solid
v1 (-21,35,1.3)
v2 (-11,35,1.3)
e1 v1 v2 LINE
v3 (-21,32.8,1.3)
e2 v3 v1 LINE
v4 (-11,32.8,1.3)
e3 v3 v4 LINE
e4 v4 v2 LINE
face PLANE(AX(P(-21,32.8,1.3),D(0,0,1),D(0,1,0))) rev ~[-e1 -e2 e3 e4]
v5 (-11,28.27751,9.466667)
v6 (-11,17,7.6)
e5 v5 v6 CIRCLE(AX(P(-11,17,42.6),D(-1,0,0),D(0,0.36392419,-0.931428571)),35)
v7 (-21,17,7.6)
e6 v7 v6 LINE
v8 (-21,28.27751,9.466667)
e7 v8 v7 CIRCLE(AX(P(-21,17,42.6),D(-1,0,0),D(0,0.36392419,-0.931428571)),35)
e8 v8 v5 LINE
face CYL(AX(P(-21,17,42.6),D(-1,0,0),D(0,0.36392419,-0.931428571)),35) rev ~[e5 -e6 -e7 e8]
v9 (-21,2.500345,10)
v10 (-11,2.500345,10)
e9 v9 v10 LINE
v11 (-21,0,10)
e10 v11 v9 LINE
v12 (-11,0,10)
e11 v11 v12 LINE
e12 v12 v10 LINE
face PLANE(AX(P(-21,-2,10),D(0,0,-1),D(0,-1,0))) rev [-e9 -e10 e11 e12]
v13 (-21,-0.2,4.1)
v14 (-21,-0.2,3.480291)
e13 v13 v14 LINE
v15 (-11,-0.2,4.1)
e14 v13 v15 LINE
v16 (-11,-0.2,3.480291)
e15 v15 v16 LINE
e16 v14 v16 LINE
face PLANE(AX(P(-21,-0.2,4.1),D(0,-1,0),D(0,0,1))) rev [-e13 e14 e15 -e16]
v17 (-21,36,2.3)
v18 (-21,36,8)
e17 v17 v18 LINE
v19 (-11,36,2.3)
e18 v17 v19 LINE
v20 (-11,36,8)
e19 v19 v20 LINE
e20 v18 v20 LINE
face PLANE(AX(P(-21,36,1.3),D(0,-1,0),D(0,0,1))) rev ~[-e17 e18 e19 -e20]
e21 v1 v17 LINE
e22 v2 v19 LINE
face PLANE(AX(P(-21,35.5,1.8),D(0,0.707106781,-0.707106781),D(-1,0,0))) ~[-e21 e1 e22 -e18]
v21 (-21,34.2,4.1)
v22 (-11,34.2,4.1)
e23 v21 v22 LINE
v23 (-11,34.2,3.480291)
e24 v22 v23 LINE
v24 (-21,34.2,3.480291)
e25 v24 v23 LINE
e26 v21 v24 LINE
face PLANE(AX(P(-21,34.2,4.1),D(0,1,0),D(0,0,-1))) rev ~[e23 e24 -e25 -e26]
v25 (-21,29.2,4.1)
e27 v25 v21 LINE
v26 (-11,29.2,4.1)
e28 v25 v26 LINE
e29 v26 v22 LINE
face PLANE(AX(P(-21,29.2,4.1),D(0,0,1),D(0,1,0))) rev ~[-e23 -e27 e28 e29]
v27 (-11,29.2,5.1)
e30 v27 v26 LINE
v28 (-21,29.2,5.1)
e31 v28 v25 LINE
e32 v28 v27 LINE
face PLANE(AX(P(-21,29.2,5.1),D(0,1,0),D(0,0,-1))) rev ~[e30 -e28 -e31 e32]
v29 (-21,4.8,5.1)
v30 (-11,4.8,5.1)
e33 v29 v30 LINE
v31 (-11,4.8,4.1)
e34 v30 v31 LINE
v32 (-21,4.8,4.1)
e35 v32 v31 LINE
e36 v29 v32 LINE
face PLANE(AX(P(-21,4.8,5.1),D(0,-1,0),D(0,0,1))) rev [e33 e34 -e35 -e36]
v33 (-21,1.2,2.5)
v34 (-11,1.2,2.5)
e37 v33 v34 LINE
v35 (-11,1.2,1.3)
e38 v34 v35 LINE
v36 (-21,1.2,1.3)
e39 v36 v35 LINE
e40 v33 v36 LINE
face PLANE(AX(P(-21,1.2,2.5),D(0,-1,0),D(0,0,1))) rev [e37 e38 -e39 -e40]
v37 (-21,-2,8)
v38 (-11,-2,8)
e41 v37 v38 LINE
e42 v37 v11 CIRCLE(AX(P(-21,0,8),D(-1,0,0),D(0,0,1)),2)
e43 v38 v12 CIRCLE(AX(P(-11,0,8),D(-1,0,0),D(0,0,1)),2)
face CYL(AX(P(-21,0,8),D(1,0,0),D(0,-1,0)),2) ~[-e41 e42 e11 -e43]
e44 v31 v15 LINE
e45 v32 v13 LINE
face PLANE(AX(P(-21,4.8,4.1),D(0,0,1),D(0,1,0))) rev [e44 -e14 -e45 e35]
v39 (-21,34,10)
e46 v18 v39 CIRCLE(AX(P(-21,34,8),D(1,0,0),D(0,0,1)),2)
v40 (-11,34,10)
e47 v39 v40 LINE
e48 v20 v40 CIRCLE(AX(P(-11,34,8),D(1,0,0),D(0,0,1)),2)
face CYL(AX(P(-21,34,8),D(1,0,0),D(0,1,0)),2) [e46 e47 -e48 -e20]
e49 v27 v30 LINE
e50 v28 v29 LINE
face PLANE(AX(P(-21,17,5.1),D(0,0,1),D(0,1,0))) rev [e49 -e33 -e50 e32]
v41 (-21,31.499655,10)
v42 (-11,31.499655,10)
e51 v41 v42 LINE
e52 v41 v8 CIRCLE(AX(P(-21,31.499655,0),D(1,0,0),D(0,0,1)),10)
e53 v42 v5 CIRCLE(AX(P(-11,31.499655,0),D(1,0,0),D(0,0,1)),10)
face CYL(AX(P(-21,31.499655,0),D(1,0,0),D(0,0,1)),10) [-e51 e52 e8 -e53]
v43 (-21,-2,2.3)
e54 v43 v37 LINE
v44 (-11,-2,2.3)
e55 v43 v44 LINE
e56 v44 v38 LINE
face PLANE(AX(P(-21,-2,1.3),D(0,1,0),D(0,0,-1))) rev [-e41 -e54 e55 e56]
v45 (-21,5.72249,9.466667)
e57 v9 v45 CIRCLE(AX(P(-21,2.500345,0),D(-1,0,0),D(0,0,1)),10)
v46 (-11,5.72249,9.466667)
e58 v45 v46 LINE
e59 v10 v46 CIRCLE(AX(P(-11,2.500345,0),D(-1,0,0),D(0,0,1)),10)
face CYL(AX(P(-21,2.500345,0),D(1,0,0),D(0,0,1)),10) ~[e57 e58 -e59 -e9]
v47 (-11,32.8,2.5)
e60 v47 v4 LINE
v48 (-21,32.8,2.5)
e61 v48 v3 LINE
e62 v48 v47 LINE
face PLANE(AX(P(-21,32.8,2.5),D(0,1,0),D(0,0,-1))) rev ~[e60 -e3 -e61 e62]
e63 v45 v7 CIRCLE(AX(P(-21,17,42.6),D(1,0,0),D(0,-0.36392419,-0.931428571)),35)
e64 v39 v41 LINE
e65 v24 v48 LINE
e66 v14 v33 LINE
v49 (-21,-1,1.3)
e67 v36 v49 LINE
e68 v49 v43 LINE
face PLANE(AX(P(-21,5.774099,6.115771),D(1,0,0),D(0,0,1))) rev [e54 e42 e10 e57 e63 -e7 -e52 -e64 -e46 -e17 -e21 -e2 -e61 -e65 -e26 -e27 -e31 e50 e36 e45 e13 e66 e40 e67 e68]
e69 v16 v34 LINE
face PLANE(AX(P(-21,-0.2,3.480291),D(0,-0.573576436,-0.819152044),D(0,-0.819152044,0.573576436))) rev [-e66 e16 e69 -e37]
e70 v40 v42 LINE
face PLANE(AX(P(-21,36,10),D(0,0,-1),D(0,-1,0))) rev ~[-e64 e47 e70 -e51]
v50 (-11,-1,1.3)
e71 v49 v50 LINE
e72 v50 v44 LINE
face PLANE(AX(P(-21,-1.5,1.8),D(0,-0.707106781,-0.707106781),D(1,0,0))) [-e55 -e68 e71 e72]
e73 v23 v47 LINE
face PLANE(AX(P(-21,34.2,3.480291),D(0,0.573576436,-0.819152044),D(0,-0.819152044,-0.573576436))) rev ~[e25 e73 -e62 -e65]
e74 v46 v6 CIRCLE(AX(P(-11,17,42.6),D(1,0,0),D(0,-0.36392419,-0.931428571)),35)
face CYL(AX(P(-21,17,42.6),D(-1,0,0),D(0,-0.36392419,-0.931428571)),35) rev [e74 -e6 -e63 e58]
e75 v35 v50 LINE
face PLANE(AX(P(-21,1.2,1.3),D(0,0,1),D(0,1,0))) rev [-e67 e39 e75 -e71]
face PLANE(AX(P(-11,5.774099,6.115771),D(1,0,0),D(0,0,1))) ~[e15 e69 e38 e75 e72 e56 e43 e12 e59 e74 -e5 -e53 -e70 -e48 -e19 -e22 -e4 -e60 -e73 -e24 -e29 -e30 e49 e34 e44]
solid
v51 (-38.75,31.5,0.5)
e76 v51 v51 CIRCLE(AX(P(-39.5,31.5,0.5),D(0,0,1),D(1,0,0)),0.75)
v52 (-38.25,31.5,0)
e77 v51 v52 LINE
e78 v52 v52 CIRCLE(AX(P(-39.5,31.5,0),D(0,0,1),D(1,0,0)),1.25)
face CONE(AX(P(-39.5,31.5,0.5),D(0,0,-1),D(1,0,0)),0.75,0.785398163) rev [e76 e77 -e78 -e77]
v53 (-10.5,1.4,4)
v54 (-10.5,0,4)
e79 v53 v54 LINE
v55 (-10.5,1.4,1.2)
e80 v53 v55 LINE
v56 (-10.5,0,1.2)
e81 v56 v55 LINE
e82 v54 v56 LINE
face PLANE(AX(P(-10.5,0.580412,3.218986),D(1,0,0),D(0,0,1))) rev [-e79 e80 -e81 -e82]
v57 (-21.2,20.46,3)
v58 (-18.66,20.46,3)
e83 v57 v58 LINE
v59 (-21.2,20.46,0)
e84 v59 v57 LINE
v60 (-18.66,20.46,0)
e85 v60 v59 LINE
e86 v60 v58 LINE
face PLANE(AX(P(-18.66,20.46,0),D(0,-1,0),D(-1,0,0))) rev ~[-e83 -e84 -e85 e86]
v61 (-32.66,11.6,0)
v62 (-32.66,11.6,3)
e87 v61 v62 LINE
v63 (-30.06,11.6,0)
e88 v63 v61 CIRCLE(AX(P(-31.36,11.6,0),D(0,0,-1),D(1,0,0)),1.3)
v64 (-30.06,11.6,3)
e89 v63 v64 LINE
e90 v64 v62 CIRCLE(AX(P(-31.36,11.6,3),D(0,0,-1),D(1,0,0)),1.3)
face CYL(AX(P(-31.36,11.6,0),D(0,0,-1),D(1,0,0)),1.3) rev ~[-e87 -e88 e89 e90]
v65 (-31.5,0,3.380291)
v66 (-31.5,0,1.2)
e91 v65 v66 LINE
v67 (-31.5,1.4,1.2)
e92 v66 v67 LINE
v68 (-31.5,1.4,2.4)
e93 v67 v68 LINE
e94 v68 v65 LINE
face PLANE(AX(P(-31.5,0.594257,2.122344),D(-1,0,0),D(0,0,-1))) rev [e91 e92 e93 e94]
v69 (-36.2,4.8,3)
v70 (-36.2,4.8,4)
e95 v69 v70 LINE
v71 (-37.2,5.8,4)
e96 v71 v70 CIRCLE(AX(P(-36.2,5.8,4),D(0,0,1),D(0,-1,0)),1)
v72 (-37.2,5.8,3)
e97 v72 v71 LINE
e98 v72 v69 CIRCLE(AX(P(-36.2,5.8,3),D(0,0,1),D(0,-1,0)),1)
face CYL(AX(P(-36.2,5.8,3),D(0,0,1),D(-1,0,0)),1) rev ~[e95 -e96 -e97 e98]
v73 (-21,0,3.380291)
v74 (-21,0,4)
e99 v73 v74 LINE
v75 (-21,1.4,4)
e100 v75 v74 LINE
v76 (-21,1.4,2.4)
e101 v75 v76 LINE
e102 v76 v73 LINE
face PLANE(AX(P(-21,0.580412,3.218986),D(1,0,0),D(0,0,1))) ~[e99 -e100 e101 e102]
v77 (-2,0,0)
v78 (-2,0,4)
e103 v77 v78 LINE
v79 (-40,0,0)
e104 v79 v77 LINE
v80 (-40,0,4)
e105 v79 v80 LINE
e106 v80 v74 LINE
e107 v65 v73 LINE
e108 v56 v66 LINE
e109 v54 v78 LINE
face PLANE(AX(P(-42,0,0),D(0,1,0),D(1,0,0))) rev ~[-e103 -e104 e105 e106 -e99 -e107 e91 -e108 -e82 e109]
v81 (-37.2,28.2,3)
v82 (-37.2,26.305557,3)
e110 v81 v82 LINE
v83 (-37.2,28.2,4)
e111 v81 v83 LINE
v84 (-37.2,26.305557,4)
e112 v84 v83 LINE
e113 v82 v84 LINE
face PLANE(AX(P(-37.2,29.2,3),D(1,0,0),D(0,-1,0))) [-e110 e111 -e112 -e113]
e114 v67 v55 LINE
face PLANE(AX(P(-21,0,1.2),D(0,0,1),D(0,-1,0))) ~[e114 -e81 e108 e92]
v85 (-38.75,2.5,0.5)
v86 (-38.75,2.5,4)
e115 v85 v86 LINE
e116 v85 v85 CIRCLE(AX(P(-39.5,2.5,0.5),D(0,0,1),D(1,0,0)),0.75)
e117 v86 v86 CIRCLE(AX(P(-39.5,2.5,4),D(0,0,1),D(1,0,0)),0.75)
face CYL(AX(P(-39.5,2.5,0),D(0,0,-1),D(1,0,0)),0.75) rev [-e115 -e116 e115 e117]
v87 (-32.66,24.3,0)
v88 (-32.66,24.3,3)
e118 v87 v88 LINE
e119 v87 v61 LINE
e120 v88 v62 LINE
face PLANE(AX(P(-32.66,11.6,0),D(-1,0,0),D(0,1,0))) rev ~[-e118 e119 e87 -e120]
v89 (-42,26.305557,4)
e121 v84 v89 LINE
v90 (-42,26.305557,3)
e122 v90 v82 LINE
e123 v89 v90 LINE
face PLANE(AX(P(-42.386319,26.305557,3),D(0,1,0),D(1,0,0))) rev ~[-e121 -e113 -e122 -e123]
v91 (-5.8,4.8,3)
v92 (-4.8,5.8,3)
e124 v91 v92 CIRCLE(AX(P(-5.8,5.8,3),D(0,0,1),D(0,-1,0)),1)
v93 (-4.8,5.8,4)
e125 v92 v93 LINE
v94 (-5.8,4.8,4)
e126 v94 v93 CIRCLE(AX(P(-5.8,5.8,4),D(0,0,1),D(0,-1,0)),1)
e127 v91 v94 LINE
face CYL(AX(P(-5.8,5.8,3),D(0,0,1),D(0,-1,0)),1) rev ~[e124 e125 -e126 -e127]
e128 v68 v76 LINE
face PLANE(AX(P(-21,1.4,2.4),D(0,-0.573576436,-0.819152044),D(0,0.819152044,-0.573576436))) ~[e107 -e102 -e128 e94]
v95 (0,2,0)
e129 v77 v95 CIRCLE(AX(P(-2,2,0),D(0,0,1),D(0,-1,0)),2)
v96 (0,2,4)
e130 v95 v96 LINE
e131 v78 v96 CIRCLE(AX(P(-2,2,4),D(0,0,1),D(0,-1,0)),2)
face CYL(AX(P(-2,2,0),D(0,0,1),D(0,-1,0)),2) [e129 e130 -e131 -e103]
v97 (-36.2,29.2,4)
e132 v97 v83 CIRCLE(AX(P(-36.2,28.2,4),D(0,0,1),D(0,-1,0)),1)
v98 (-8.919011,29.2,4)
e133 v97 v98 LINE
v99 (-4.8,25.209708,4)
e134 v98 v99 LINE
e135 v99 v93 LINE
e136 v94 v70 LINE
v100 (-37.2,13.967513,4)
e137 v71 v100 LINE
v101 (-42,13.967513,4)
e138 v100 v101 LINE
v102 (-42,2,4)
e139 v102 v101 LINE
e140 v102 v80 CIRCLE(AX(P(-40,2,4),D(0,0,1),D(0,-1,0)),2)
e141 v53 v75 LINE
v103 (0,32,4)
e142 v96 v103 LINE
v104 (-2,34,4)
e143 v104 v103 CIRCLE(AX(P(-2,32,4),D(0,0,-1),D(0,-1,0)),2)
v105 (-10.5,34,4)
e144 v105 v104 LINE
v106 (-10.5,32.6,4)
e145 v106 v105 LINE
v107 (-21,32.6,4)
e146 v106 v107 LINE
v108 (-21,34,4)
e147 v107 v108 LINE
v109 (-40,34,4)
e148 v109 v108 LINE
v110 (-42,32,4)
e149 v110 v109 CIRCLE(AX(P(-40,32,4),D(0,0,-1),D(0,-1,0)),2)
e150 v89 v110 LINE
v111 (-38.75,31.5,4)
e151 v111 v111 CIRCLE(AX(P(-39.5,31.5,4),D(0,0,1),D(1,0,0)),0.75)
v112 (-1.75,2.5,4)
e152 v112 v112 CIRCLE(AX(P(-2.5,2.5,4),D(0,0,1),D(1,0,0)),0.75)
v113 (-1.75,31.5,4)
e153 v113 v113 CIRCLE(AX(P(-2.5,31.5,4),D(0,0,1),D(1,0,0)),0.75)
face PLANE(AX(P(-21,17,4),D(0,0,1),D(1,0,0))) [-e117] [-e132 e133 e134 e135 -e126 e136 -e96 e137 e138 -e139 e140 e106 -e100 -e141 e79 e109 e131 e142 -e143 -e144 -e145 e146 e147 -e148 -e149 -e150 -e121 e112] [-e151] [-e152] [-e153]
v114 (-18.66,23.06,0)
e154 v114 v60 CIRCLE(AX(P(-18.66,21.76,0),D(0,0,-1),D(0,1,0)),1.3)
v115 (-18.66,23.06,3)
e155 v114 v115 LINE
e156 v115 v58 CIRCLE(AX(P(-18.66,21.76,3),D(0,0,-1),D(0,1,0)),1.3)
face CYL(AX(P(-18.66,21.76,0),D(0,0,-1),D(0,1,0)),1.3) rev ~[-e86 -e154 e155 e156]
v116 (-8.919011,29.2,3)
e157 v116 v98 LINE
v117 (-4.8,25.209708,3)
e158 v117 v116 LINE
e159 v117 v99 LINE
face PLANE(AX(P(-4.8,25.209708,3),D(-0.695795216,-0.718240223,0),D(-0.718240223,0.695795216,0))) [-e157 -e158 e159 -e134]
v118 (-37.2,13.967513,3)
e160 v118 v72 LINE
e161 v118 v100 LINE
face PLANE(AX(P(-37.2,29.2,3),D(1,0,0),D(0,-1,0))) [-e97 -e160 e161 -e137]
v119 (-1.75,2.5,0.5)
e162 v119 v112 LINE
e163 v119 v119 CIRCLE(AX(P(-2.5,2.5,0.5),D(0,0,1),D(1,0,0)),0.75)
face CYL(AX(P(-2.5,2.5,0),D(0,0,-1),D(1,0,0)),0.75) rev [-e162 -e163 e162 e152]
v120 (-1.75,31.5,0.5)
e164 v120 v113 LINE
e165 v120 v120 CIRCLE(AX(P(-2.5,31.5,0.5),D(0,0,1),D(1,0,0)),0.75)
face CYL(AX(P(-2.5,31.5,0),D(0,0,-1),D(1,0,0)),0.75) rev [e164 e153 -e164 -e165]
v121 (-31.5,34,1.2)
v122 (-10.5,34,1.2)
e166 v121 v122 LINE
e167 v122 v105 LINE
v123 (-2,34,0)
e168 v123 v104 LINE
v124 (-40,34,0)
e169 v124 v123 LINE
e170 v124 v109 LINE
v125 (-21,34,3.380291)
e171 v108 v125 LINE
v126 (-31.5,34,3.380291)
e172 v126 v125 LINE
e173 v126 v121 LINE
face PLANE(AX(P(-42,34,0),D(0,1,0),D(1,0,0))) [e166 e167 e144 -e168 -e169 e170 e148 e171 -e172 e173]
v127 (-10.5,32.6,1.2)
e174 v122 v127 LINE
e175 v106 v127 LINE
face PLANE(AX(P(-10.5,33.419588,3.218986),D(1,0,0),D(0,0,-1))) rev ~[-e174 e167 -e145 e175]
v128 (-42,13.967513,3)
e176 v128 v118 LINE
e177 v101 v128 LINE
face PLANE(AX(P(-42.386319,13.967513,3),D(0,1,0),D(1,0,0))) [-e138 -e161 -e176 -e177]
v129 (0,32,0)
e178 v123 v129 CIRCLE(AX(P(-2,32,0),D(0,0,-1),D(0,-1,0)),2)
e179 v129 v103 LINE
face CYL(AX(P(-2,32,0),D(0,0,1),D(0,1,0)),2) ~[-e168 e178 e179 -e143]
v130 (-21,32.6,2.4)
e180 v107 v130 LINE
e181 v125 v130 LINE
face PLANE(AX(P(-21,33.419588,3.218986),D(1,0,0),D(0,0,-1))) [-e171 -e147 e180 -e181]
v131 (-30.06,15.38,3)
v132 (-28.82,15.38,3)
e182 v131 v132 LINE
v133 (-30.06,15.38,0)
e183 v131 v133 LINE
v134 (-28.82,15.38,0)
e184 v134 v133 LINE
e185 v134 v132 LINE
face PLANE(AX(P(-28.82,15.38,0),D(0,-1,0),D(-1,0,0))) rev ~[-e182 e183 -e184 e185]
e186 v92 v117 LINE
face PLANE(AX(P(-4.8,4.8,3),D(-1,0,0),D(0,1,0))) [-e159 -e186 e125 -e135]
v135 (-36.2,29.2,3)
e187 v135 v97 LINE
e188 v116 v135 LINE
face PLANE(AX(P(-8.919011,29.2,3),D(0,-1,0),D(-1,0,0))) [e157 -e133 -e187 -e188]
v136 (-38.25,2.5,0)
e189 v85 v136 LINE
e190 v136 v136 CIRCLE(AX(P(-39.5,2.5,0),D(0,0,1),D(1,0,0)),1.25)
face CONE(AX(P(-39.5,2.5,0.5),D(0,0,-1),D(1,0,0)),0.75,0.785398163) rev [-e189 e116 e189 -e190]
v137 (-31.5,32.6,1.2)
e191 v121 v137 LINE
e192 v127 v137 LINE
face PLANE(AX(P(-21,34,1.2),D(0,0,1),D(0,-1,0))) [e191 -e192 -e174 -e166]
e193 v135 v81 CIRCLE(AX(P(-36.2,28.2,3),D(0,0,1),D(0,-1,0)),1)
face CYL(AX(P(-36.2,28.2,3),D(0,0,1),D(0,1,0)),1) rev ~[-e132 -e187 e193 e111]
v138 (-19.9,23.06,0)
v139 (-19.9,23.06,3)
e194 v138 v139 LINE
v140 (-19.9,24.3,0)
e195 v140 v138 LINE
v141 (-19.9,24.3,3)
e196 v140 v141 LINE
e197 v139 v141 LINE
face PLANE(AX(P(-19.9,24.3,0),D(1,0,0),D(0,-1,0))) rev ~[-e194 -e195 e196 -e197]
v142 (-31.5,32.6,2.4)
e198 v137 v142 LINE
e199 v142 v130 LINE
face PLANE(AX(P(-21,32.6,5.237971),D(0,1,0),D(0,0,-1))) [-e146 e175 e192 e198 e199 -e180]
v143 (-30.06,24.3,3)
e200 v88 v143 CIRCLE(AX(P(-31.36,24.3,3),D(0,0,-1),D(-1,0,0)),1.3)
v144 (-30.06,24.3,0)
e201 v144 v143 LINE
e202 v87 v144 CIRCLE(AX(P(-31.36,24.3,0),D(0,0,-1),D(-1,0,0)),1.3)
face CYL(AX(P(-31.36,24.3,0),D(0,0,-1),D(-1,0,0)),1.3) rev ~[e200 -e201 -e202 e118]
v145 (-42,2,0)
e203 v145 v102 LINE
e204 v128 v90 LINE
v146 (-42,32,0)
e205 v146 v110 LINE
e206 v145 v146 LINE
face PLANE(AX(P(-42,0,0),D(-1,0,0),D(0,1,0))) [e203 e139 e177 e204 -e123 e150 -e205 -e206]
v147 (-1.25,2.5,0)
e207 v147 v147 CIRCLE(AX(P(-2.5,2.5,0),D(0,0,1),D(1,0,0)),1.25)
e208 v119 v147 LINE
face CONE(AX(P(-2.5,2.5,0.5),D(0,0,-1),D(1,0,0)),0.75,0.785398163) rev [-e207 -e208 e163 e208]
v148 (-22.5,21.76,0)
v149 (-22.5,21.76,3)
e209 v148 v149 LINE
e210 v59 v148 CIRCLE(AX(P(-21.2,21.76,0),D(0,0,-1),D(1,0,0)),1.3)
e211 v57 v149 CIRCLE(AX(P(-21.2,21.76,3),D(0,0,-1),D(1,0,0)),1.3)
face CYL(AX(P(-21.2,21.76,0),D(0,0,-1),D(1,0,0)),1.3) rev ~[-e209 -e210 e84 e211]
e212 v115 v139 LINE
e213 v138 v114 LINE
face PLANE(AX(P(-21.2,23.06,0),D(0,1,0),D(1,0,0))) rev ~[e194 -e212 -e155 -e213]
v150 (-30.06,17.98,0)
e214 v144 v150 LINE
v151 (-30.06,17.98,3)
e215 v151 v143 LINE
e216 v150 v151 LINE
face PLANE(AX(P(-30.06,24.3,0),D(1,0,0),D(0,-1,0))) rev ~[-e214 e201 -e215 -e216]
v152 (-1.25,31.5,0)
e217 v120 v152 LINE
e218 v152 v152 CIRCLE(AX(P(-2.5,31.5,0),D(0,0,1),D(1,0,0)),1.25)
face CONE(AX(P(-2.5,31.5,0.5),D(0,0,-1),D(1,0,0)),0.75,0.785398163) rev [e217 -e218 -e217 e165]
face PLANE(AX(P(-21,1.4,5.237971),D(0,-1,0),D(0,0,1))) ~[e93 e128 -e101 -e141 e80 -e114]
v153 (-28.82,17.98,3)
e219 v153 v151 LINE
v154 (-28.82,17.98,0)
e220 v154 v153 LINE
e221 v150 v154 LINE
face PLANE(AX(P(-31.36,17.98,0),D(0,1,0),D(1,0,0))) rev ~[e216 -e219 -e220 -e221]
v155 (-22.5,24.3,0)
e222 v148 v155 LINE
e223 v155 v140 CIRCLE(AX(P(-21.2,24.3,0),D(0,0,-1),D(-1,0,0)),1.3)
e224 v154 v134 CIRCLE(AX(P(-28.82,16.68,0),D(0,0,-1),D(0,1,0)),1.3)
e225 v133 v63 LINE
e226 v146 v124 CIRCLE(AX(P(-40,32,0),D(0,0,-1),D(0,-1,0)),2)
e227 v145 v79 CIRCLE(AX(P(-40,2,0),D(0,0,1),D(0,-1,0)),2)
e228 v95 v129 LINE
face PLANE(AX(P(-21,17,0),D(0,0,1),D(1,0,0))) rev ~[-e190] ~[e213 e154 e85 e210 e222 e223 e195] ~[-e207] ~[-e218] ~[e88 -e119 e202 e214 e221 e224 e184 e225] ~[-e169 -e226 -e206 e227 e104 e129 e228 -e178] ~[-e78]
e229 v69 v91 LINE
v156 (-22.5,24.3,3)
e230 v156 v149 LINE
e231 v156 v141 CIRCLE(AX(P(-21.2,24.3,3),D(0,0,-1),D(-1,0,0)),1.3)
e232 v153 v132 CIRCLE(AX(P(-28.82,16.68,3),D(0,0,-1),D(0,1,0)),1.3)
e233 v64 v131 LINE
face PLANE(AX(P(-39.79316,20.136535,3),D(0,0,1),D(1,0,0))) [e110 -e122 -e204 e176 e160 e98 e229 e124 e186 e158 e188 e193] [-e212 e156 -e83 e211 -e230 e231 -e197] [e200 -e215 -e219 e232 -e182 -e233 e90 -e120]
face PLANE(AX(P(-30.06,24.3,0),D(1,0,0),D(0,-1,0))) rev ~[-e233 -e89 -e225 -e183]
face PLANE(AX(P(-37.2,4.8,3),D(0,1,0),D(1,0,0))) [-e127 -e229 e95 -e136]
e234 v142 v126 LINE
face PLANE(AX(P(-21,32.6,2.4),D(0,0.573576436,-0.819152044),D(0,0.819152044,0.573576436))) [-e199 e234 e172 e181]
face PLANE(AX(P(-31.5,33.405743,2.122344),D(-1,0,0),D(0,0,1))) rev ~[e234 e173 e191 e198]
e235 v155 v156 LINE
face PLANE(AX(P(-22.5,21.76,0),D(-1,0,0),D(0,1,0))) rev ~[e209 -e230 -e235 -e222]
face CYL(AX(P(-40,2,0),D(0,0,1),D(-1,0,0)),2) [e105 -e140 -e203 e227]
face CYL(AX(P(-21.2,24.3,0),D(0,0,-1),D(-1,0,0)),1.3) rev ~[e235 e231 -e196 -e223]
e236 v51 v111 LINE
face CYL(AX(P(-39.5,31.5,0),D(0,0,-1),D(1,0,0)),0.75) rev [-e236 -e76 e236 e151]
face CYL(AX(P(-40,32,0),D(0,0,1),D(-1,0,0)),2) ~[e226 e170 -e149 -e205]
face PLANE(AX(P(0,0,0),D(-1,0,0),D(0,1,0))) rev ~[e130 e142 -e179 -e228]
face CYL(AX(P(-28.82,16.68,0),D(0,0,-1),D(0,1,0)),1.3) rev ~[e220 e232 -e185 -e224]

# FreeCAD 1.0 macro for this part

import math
import FreeCAD as App
import Part
import Sketcher
from FreeCAD import Vector
Q = App.Units.Quantity


def edges_at(feature, points):
    """Names of the edges that pass closest to the given points."""
    edges = feature.Shape.Edges
    near = lambda p: min(range(len(edges)), key=lambda i: edges[i].distToShape(Part.Vertex(*p))[0])
    return sorted({f"Edge{near(p) + 1}" for p in points})

doc = App.newDocument("Part")
body = doc.addObject("PartDesign::Body", "Body")

# Sketch on XY plane
sketch1 = body.newObject("Sketcher::SketchObject", "Sketch")
sketch1.AttachmentSupport = (doc.getObject("XY_Plane"), [""])
sketch1.MapMode = "FlatFace"
sketch1.addGeometry(Part.LineSegment(Vector(-42, 34, 0), Vector(-42, 0, 0)), False)
sketch1.addGeometry(Part.LineSegment(Vector(-42, 0, 0), Vector(0, 0, 0)), False)
sketch1.addGeometry(Part.LineSegment(Vector(0, 0, 0), Vector(0, 34, 0)), False)
sketch1.addGeometry(Part.LineSegment(Vector(0, 34, 0), Vector(-42, 34, 0)), False)
sketch1.addGeometry(Part.Circle(Vector(-39.5, 2.5, 0), Vector(0, 0, 1), 0.75), False)
sketch1.addGeometry(Part.Circle(Vector(-2.5, 2.5, 0), Vector(0, 0, 1), 0.75), False)
sketch1.addGeometry(Part.Circle(Vector(-39.5, 31.5, 0), Vector(0, 0, 1), 0.75), False)
sketch1.addGeometry(Part.Circle(Vector(-2.5, 31.5, 0), Vector(0, 0, 1), 0.75), False)
sketch1.addConstraint(Sketcher.Constraint("Coincident", 0, 2, 1, 1))
sketch1.addConstraint(Sketcher.Constraint("Coincident", 1, 2, 2, 1))
sketch1.addConstraint(Sketcher.Constraint("Coincident", 2, 2, 3, 1))
sketch1.addConstraint(Sketcher.Constraint("Coincident", 3, 2, 0, 1))
sketch1.addConstraint(Sketcher.Constraint("Vertical", 0))
sketch1.addConstraint(Sketcher.Constraint("Horizontal", 1))
sketch1.addConstraint(Sketcher.Constraint("Vertical", 2))
sketch1.addConstraint(Sketcher.Constraint("Horizontal", 3))
sketch1.addConstraint(Sketcher.Constraint("Coincident", 1, 2, -1, 1))
sketch1.addConstraint(Sketcher.Constraint("Equal", 4, 5))
sketch1.addConstraint(Sketcher.Constraint("Equal", 5, 6))
sketch1.addConstraint(Sketcher.Constraint("Equal", 6, 7))
sketch1.addConstraint(Sketcher.Constraint("Horizontal", 4, 3, 5, 3))
sketch1.addConstraint(Sketcher.Constraint("Horizontal", 6, 3, 7, 3))
sketch1.addConstraint(Sketcher.Constraint("Vertical", 4, 3, 6, 3))
sketch1.addConstraint(Sketcher.Constraint("Vertical", 5, 3, 7, 3))
sketch1.addConstraint(Sketcher.Constraint("Diameter", 4, Q("1.5 mm")))
sketch1.addConstraint(Sketcher.Constraint("DistanceX", 1, 1, 1, 2, Q("42 mm")))
sketch1.addConstraint(Sketcher.Constraint("DistanceY", 0, 2, 0, 1, Q("34 mm")))
sketch1.addConstraint(Sketcher.Constraint("DistanceX", 4, 3, 5, 3, Q("37 mm")))
sketch1.addConstraint(Sketcher.Constraint("DistanceY", 4, 3, 6, 3, Q("29 mm")))
sketch1.addConstraint(Sketcher.Constraint("DistanceX", 4, 3, -1, 1, Q("39.5 mm")))
sketch1.addConstraint(Sketcher.Constraint("DistanceY", -1, 1, 4, 3, Q("2.5 mm")))
pad1 = body.newObject("PartDesign::Pad", "Pad")
pad1.Profile = sketch1
pad1.Length = 4

# Sketch on XY plane
sketch2 = body.newObject("Sketcher::SketchObject", "Sketch001")
sketch2.AttachmentSupport = (doc.getObject("XY_Plane"), [""])
sketch2.MapMode = "FlatFace"
sketch2.AttachmentOffset = App.Placement(Vector(0, 0, 3), App.Rotation())
sketch2.addGeometry(Part.LineSegment(Vector(-37.2, 29.2, 0), Vector(-37.2, 4.8, 0)), False)
sketch2.addGeometry(Part.LineSegment(Vector(-37.2, 4.8, 0), Vector(-4.8, 4.8, 0)), False)
sketch2.addGeometry(Part.LineSegment(Vector(-4.8, 4.8, 0), Vector(-4.8, 25.209708, 0)), False)
sketch2.addGeometry(Part.LineSegment(Vector(-4.8, 25.209708, 0), Vector(-8.919011, 29.2, 0)), False)
sketch2.addGeometry(Part.LineSegment(Vector(-8.919011, 29.2, 0), Vector(-37.2, 29.2, 0)), False)
sketch2.addConstraint(Sketcher.Constraint("Coincident", 0, 2, 1, 1))
sketch2.addConstraint(Sketcher.Constraint("Coincident", 1, 2, 2, 1))
sketch2.addConstraint(Sketcher.Constraint("Coincident", 2, 2, 3, 1))
sketch2.addConstraint(Sketcher.Constraint("Coincident", 3, 2, 4, 1))
sketch2.addConstraint(Sketcher.Constraint("Coincident", 4, 2, 0, 1))
sketch2.addConstraint(Sketcher.Constraint("Vertical", 0))
sketch2.addConstraint(Sketcher.Constraint("Horizontal", 1))
sketch2.addConstraint(Sketcher.Constraint("Vertical", 2))
sketch2.addConstraint(Sketcher.Constraint("Horizontal", 4))
sketch2.addConstraint(Sketcher.Constraint("DistanceX", 1, 1, 1, 2, Q("32.4 mm")))
sketch2.addConstraint(Sketcher.Constraint("DistanceY", 0, 2, 0, 1, Q("24.4 mm")))
sketch2.addConstraint(Sketcher.Constraint("DistanceX", 0, 2, -1, 1, Q("37.2 mm")))
sketch2.addConstraint(Sketcher.Constraint("DistanceY", -1, 1, 0, 2, Q("4.8 mm")))
sketch2.addConstraint(Sketcher.Constraint("DistanceX", 4, 2, 4, 1, Q("28.280989 mm")))
sketch2.addConstraint(Sketcher.Constraint("DistanceY", 2, 1, 2, 2, Q("20.409708 mm")))
pocket1 = body.newObject("PartDesign::Pocket", "Pocket")
pocket1.Profile = sketch2
pocket1.Type = "ThroughAll"
pocket1.Reversed = True

# Sketch on XY plane
sketch3 = body.newObject("Sketcher::SketchObject", "Sketch002")
sketch3.AttachmentSupport = (doc.getObject("XY_Plane"), [""])
sketch3.MapMode = "FlatFace"
sketch3.addGeometry(Part.LineSegment(Vector(-30.06, 11.6, 0), Vector(-30.06, 24.3, 0)), False)
sketch3.addGeometry(Part.ArcOfCircle(Part.Circle(Vector(-31.36, 24.3, 0), Vector(0, 0, 1), 1.3), math.radians(0), math.radians(180)), False)
sketch3.addGeometry(Part.LineSegment(Vector(-32.66, 24.3, 0), Vector(-32.66, 11.6, 0)), False)
sketch3.addGeometry(Part.ArcOfCircle(Part.Circle(Vector(-31.36, 11.6, 0), Vector(0, 0, 1), 1.3), math.radians(180), math.radians(360)), False)
sketch3.addGeometry(Part.LineSegment(Vector(-19.9, 21.76, 0), Vector(-19.9, 24.3, 0)), False)
sketch3.addGeometry(Part.ArcOfCircle(Part.Circle(Vector(-21.2, 24.3, 0), Vector(0, 0, 1), 1.3), math.radians(0), math.radians(180)), False)
sketch3.addGeometry(Part.LineSegment(Vector(-22.5, 24.3, 0), Vector(-22.5, 21.76, 0)), False)
sketch3.addGeometry(Part.ArcOfCircle(Part.Circle(Vector(-21.2, 21.76, 0), Vector(0, 0, 1), 1.3), math.radians(180), math.radians(360)), False)
sketch3.addConstraint(Sketcher.Constraint("Tangent", 0, 2, 1, 1))
sketch3.addConstraint(Sketcher.Constraint("Tangent", 1, 2, 2, 1))
sketch3.addConstraint(Sketcher.Constraint("Tangent", 2, 2, 3, 1))
sketch3.addConstraint(Sketcher.Constraint("Tangent", 3, 2, 0, 1))
sketch3.addConstraint(Sketcher.Constraint("Tangent", 4, 2, 5, 1))
sketch3.addConstraint(Sketcher.Constraint("Tangent", 5, 2, 6, 1))
sketch3.addConstraint(Sketcher.Constraint("Tangent", 6, 2, 7, 1))
sketch3.addConstraint(Sketcher.Constraint("Tangent", 7, 2, 4, 1))
sketch3.addConstraint(Sketcher.Constraint("Vertical", 0))
sketch3.addConstraint(Sketcher.Constraint("Vertical", 2))
sketch3.addConstraint(Sketcher.Constraint("Vertical", 4))
sketch3.addConstraint(Sketcher.Constraint("Vertical", 6))
sketch3.addConstraint(Sketcher.Constraint("Equal", 3, 5))
sketch3.addConstraint(Sketcher.Constraint("Horizontal", 1, 3, 5, 3))
sketch3.addConstraint(Sketcher.Constraint("Radius", 1, Q("1.3 mm")))
sketch3.addConstraint(Sketcher.Constraint("DistanceY", 0, 1, 0, 2, Q("12.7 mm")))
sketch3.addConstraint(Sketcher.Constraint("DistanceY", 4, 1, 4, 2, Q("2.54 mm")))
sketch3.addConstraint(Sketcher.Constraint("DistanceY", -1, 1, 1, 3, Q("24.3 mm")))
sketch3.addConstraint(Sketcher.Constraint("DistanceX", 5, 3, -1, 1, Q("21.2 mm")))
sketch3.addConstraint(Sketcher.Constraint("DistanceX", 1, 3, -1, 1, Q("31.36 mm")))
pocket2 = body.newObject("PartDesign::Pocket", "Pocket001")
pocket2.Profile = sketch3
pocket2.Type = "ThroughAll"
pocket2.Reversed = True

# Sketch on XY plane
sketch4 = body.newObject("Sketcher::SketchObject", "Sketch003")
sketch4.AttachmentSupport = (doc.getObject("XY_Plane"), [""])
sketch4.MapMode = "FlatFace"
sketch4.addGeometry(Part.LineSegment(Vector(-31.36, 15.38, 0), Vector(-28.82, 15.38, 0)), False)
sketch4.addGeometry(Part.ArcOfCircle(Part.Circle(Vector(-28.82, 16.68, 0), Vector(0, 0, 1), 1.3), math.radians(-90), math.radians(90)), False)
sketch4.addGeometry(Part.LineSegment(Vector(-28.82, 17.98, 0), Vector(-31.36, 17.98, 0)), False)
sketch4.addGeometry(Part.ArcOfCircle(Part.Circle(Vector(-31.36, 16.68, 0), Vector(0, 0, 1), 1.3), math.radians(90), math.radians(270)), False)
sketch4.addGeometry(Part.LineSegment(Vector(-21.2, 20.46, 0), Vector(-18.66, 20.46, 0)), False)
sketch4.addGeometry(Part.ArcOfCircle(Part.Circle(Vector(-18.66, 21.76, 0), Vector(0, 0, 1), 1.3), math.radians(-90), math.radians(90)), False)
sketch4.addGeometry(Part.LineSegment(Vector(-18.66, 23.06, 0), Vector(-21.2, 23.06, 0)), False)
sketch4.addGeometry(Part.ArcOfCircle(Part.Circle(Vector(-21.2, 21.76, 0), Vector(0, 0, 1), 1.3), math.radians(90), math.radians(270)), False)
sketch4.addConstraint(Sketcher.Constraint("Tangent", 0, 2, 1, 1))
sketch4.addConstraint(Sketcher.Constraint("Tangent", 1, 2, 2, 1))
sketch4.addConstraint(Sketcher.Constraint("Tangent", 2, 2, 3, 1))
sketch4.addConstraint(Sketcher.Constraint("Tangent", 3, 2, 0, 1))
sketch4.addConstraint(Sketcher.Constraint("Tangent", 4, 2, 5, 1))
sketch4.addConstraint(Sketcher.Constraint("Tangent", 5, 2, 6, 1))
sketch4.addConstraint(Sketcher.Constraint("Tangent", 6, 2, 7, 1))
sketch4.addConstraint(Sketcher.Constraint("Tangent", 7, 2, 4, 1))
sketch4.addConstraint(Sketcher.Constraint("Horizontal", 0))
sketch4.addConstraint(Sketcher.Constraint("Horizontal", 2))
sketch4.addConstraint(Sketcher.Constraint("Horizontal", 4))
sketch4.addConstraint(Sketcher.Constraint("Horizontal", 6))
sketch4.addConstraint(Sketcher.Constraint("Equal", 3, 5))
sketch4.addConstraint(Sketcher.Constraint("Equal", 2, 4))
sketch4.addConstraint(Sketcher.Constraint("Radius", 1, Q("1.3 mm")))
sketch4.addConstraint(Sketcher.Constraint("DistanceX", 0, 1, 0, 2, Q("2.54 mm")))
sketch4.addConstraint(Sketcher.Constraint("DistanceX", 7, 3, -1, 1, Q("21.2 mm")))
sketch4.addConstraint(Sketcher.Constraint("DistanceX", 3, 3, 5, 3, Q("12.7 mm")))
sketch4.addConstraint(Sketcher.Constraint("DistanceY", -1, 1, 1, 3, Q("16.68 mm")))
sketch4.addConstraint(Sketcher.Constraint("DistanceY", -1, 1, 5, 3, Q("21.76 mm")))
pocket3 = body.newObject("PartDesign::Pocket", "Pocket002")
pocket3.Profile = sketch4
pocket3.Type = "ThroughAll"
pocket3.Reversed = True

# Sketch on XY plane
sketch5 = body.newObject("Sketcher::SketchObject", "Sketch004")
sketch5.AttachmentSupport = (doc.getObject("XY_Plane"), [""])
sketch5.MapMode = "FlatFace"
sketch5.AttachmentOffset = App.Placement(Vector(0, 0, 3), App.Rotation())
sketch5.addGeometry(Part.LineSegment(Vector(-42.386319, 26.305557, 0), Vector(-42.386319, 13.967513, 0)), False)
sketch5.addGeometry(Part.LineSegment(Vector(-42.386319, 13.967513, 0), Vector(-37.2, 13.967513, 0)), False)
sketch5.addGeometry(Part.LineSegment(Vector(-37.2, 13.967513, 0), Vector(-37.2, 26.305557, 0)), False)
sketch5.addGeometry(Part.LineSegment(Vector(-37.2, 26.305557, 0), Vector(-42.386319, 26.305557, 0)), False)
sketch5.addConstraint(Sketcher.Constraint("Coincident", 0, 2, 1, 1))
sketch5.addConstraint(Sketcher.Constraint("Coincident", 1, 2, 2, 1))
sketch5.addConstraint(Sketcher.Constraint("Coincident", 2, 2, 3, 1))
sketch5.addConstraint(Sketcher.Constraint("Coincident", 3, 2, 0, 1))
sketch5.addConstraint(Sketcher.Constraint("Vertical", 0))
sketch5.addConstraint(Sketcher.Constraint("Horizontal", 1))
sketch5.addConstraint(Sketcher.Constraint("Vertical", 2))
sketch5.addConstraint(Sketcher.Constraint("Horizontal", 3))
sketch5.addConstraint(Sketcher.Constraint("DistanceX", 1, 2, -1, 1, Q("37.2 mm")))
sketch5.addConstraint(Sketcher.Constraint("DistanceX", 1, 1, 1, 2, Q("5.186319 mm")))
sketch5.addConstraint(Sketcher.Constraint("DistanceY", 0, 2, 0, 1, Q("12.338044 mm")))
sketch5.addConstraint(Sketcher.Constraint("DistanceY", -1, 1, 0, 2, Q("13.967513 mm")))
pocket4 = body.newObject("PartDesign::Pocket", "Pocket003")
pocket4.Profile = sketch5
pocket4.Type = "ThroughAll"
pocket4.Reversed = True
doc.recompute()

fillet = body.newObject("PartDesign::Fillet", "Fillet")
fillet.Base = (pocket4, edges_at(pocket4, [
    (0, 0, 2),
    (-42, 0, 2),
    (-42, 34, 2),
    (0, 34, 2),
]))
fillet.Radius = 2
doc.recompute()

fillet2 = body.newObject("PartDesign::Fillet", "Fillet001")
fillet2.Base = (fillet, edges_at(fillet, [(-37.2, 29.2, 3.5), (-37.2, 4.8, 3.5), (-4.8, 4.8, 3.5)]))
fillet2.Radius = 1
doc.recompute()

chamfer = body.newObject("PartDesign::Chamfer", "Chamfer")
chamfer.Base = (fillet2, edges_at(fillet2, [
    (-40.25, 31.5, 0),
    (-3.25, 31.5, 0),
    (-40.25, 2.5, 0),
    (-3.25, 2.5, 0),
]))
chamfer.Size = 0.5

# Sketch on YZ plane
sketch6 = body.newObject("Sketcher::SketchObject", "Sketch005")
sketch6.AttachmentSupport = (doc.getObject("YZ_Plane"), [""])
sketch6.MapMode = "FlatFace"
sketch6.AttachmentOffset = App.Placement(Vector(0, 0, -21), App.Rotation())
sketch6.addGeometry(Part.LineSegment(Vector(34, 1.2, 0), Vector(34, 3.380291, 0)), False)
sketch6.addGeometry(Part.LineSegment(Vector(34, 3.380291, 0), Vector(32.6, 2.4, 0)), False)
sketch6.addGeometry(Part.LineSegment(Vector(32.6, 2.4, 0), Vector(32.6, 1.2, 0)), False)
sketch6.addGeometry(Part.LineSegment(Vector(32.6, 1.2, 0), Vector(34, 1.2, 0)), False)
sketch6.addConstraint(Sketcher.Constraint("Coincident", 0, 2, 1, 1))
sketch6.addConstraint(Sketcher.Constraint("Coincident", 1, 2, 2, 1))
sketch6.addConstraint(Sketcher.Constraint("Coincident", 2, 2, 3, 1))
sketch6.addConstraint(Sketcher.Constraint("Coincident", 3, 2, 0, 1))
sketch6.addConstraint(Sketcher.Constraint("Vertical", 0))
sketch6.addConstraint(Sketcher.Constraint("Vertical", 2))
sketch6.addConstraint(Sketcher.Constraint("Horizontal", 3))
sketch6.addConstraint(Sketcher.Constraint("Angle", 1, Q("-145 deg")))
sketch6.addConstraint(Sketcher.Constraint("DistanceX", 3, 1, 3, 2, Q("1.4 mm")))
sketch6.addConstraint(Sketcher.Constraint("DistanceY", 2, 2, 2, 1, Q("1.2 mm")))
sketch6.addConstraint(Sketcher.Constraint("DistanceX", -1, 1, 0, 2, Q("34 mm")))
sketch6.addConstraint(Sketcher.Constraint("DistanceY", -1, 1, 1, 2, Q("2.4 mm")))
pocket5 = body.newObject("PartDesign::Pocket", "Pocket004")
pocket5.Profile = sketch6
pocket5.Length = 21
pocket5.Midplane = True

# Sketch on YZ plane
sketch7 = body.newObject("Sketcher::SketchObject", "Sketch006")
sketch7.AttachmentSupport = (doc.getObject("YZ_Plane"), [""])
sketch7.MapMode = "FlatFace"
sketch7.AttachmentOffset = App.Placement(Vector(0, 0, -21), App.Rotation())
sketch7.addGeometry(Part.LineSegment(Vector(34.239176, 5.237971, 0), Vector(32.6, 5.237971, 0)), False)
sketch7.addGeometry(Part.LineSegment(Vector(32.6, 5.237971, 0), Vector(32.6, 1.2, 0)), False)
sketch7.addGeometry(Part.LineSegment(Vector(32.6, 1.2, 0), Vector(34.239176, 1.2, 0)), False)
sketch7.addGeometry(Part.LineSegment(Vector(34.239176, 1.2, 0), Vector(34.239176, 5.237971, 0)), False)
sketch7.addConstraint(Sketcher.Constraint("Coincident", 0, 2, 1, 1))
sketch7.addConstraint(Sketcher.Constraint("Coincident", 1, 2, 2, 1))
sketch7.addConstraint(Sketcher.Constraint("Coincident", 2, 2, 3, 1))
sketch7.addConstraint(Sketcher.Constraint("Coincident", 3, 2, 0, 1))
sketch7.addConstraint(Sketcher.Constraint("Horizontal", 0))
sketch7.addConstraint(Sketcher.Constraint("Vertical", 1))
sketch7.addConstraint(Sketcher.Constraint("Horizontal", 2))
sketch7.addConstraint(Sketcher.Constraint("Vertical", 3))
sketch7.addConstraint(Sketcher.Constraint("DistanceX", -1, 1, 0, 2, Q("32.6 mm")))
sketch7.addConstraint(Sketcher.Constraint("DistanceY", -1, 1, 1, 2, Q("1.2 mm")))
sketch7.addConstraint(Sketcher.Constraint("DistanceY", 1, 2, 1, 1, Q("4.037971 mm")))
sketch7.addConstraint(Sketcher.Constraint("DistanceX", 0, 2, 0, 1, Q("1.639176 mm")))
pocket6 = body.newObject("PartDesign::Pocket", "Pocket005")
pocket6.Profile = sketch7
pocket6.Length = 10.5
pocket6.Reversed = True
doc.recompute()

datumplane = body.newObject("PartDesign::Plane", "DatumPlane")
datumplane.AttachmentSupport = (doc.getObject("XZ_Plane"), [""])
datumplane.MapMode = "FlatFace"
datumplane.AttachmentOffset = App.Placement(Vector(0, 0, -17), App.Rotation())
mirrored = body.newObject("PartDesign::Mirrored", "Mirrored")
mirrored.Originals = [pocket5, pocket6]
mirrored.MirrorPlane = (datumplane, [""])
body.Tip = mirrored
body2 = doc.addObject("PartDesign::Body", "Body001")

# Sketch on YZ plane
sketch8 = body2.newObject("Sketcher::SketchObject", "Sketch007")
sketch8.AttachmentSupport = (doc.getObject("YZ_Plane001"), [""])
sketch8.MapMode = "FlatFace"
sketch8.AttachmentOffset = App.Placement(Vector(0, 0, -21), App.Rotation())
sketch8.addGeometry(Part.LineSegment(Vector(34.2, 4.1, 0), Vector(34.2, 3.480291, 0)), False)
sketch8.addGeometry(Part.LineSegment(Vector(34.2, 3.480291, 0), Vector(32.8, 2.5, 0)), False)
sketch8.addGeometry(Part.LineSegment(Vector(32.8, 2.5, 0), Vector(32.8, 1.3, 0)), False)
sketch8.addGeometry(Part.LineSegment(Vector(32.8, 1.3, 0), Vector(36, 1.3, 0)), False)
sketch8.addGeometry(Part.LineSegment(Vector(36, 1.3, 0), Vector(36, 10, 0)), False)
sketch8.addGeometry(Part.LineSegment(Vector(36, 10, 0), Vector(29.737347, 10, 0)), False)
sketch8.addGeometry(Part.ArcOfCircle(Part.Circle(Vector(17, 42.6, 0), Vector(0, 0, 1), 35), math.radians(-90), math.radians(-68.658609)), False)
sketch8.addGeometry(Part.LineSegment(Vector(17, 7.6, 0), Vector(17, 5.1, 0)), False)
sketch8.addGeometry(Part.LineSegment(Vector(17, 5.1, 0), Vector(29.2, 5.1, 0)), False)
sketch8.addGeometry(Part.LineSegment(Vector(29.2, 5.1, 0), Vector(29.2, 4.1, 0)), False)
sketch8.addGeometry(Part.LineSegment(Vector(29.2, 4.1, 0), Vector(34.2, 4.1, 0)), False)
sketch8.addConstraint(Sketcher.Constraint("Coincident", 0, 2, 1, 1))
sketch8.addConstraint(Sketcher.Constraint("Coincident", 1, 2, 2, 1))
sketch8.addConstraint(Sketcher.Constraint("Coincident", 2, 2, 3, 1))
sketch8.addConstraint(Sketcher.Constraint("Coincident", 3, 2, 4, 1))
sketch8.addConstraint(Sketcher.Constraint("Coincident", 4, 2, 5, 1))
sketch8.addConstraint(Sketcher.Constraint("Coincident", 5, 2, 6, 2))
sketch8.addConstraint(Sketcher.Constraint("Coincident", 6, 1, 7, 1))
sketch8.addConstraint(Sketcher.Constraint("Coincident", 7, 2, 8, 1))
sketch8.addConstraint(Sketcher.Constraint("Coincident", 8, 2, 9, 1))
sketch8.addConstraint(Sketcher.Constraint("Coincident", 9, 2, 10, 1))
sketch8.addConstraint(Sketcher.Constraint("Coincident", 10, 2, 0, 1))
sketch8.addConstraint(Sketcher.Constraint("Vertical", 0))
sketch8.addConstraint(Sketcher.Constraint("Vertical", 2))
sketch8.addConstraint(Sketcher.Constraint("Horizontal", 3))
sketch8.addConstraint(Sketcher.Constraint("Vertical", 4))
sketch8.addConstraint(Sketcher.Constraint("Horizontal", 5))
sketch8.addConstraint(Sketcher.Constraint("Vertical", 7))
sketch8.addConstraint(Sketcher.Constraint("Horizontal", 8))
sketch8.addConstraint(Sketcher.Constraint("Vertical", 9))
sketch8.addConstraint(Sketcher.Constraint("Horizontal", 10))
sketch8.addConstraint(Sketcher.Constraint("Radius", 6, Q("35 mm")))
sketch8.addConstraint(Sketcher.Constraint("DistanceX", 10, 1, 10, 2, Q("5 mm")))
sketch8.addConstraint(Sketcher.Constraint("DistanceY", 9, 2, 9, 1, Q("1 mm")))
sketch8.addConstraint(Sketcher.Constraint("Angle", 1, Q("-145 deg")))
sketch8.addConstraint(Sketcher.Constraint("DistanceX", 3, 1, 3, 2, Q("3.2 mm")))
sketch8.addConstraint(Sketcher.Constraint("DistanceX", 8, 1, 8, 2, Q("12.2 mm")))
sketch8.addConstraint(Sketcher.Constraint("DistanceY", 2, 2, 2, 1, Q("1.2 mm")))
sketch8.addConstraint(Sketcher.Constraint("DistanceY", 4, 1, 4, 2, Q("8.7 mm")))
sketch8.addConstraint(Sketcher.Constraint("DistanceY", 7, 2, 7, 1, Q("2.5 mm")))
sketch8.addConstraint(Sketcher.Constraint("DistanceX", -1, 1, 6, 3, Q("17 mm")))
sketch8.addConstraint(Sketcher.Constraint("DistanceX", -1, 1, 3, 2, Q("36 mm")))
sketch8.addConstraint(Sketcher.Constraint("DistanceY", -1, 1, 4, 2, Q("10 mm")))
sketch8.addConstraint(Sketcher.Constraint("DistanceX", -1, 1, 6, 1, Q("17 mm")))
sketch8.addConstraint(Sketcher.Constraint("DistanceY", -1, 1, 6, 3, Q("42.6 mm")))
pad2 = body2.newObject("PartDesign::Pad", "Pad001")
pad2.Profile = sketch8
pad2.Length = 10
doc.recompute()

chamfer2 = body2.newObject("PartDesign::Chamfer", "Chamfer001")
chamfer2.Base = (pad2, edges_at(pad2, [(-16, 36, 1.3)]))
chamfer2.Size = 1
doc.recompute()

fillet3 = body2.newObject("PartDesign::Fillet", "Fillet002")
fillet3.Base = (chamfer2, edges_at(chamfer2, [(-16, 36, 10)]))
fillet3.Radius = 2
doc.recompute()

fillet4 = body2.newObject("PartDesign::Fillet", "Fillet003")
fillet4.Base = (fillet3, edges_at(fillet3, [(-16, 29.737, 10)]))
fillet4.Radius = 10
body3 = doc.addObject("PartDesign::Body", "Body002")
doc.recompute()

body3.BaseFeature = body2
doc.recompute()

mirroring = doc.addObject("Part::Mirroring", "Mirroring")
mirroring.Source = body2
mirroring.Base = Vector(0, 17, 0)
mirroring.Normal = Vector(0, 1, 0)
body4 = doc.addObject("PartDesign::Body", "Body003")
body4.BaseFeature = mirroring
boolean = body3.newObject("PartDesign::Boolean", "Boolean")
boolean.Type = "Fuse"
boolean.addObjects([body4])
doc.recompute()
mirroring.Visibility = False

doc.recompute()
